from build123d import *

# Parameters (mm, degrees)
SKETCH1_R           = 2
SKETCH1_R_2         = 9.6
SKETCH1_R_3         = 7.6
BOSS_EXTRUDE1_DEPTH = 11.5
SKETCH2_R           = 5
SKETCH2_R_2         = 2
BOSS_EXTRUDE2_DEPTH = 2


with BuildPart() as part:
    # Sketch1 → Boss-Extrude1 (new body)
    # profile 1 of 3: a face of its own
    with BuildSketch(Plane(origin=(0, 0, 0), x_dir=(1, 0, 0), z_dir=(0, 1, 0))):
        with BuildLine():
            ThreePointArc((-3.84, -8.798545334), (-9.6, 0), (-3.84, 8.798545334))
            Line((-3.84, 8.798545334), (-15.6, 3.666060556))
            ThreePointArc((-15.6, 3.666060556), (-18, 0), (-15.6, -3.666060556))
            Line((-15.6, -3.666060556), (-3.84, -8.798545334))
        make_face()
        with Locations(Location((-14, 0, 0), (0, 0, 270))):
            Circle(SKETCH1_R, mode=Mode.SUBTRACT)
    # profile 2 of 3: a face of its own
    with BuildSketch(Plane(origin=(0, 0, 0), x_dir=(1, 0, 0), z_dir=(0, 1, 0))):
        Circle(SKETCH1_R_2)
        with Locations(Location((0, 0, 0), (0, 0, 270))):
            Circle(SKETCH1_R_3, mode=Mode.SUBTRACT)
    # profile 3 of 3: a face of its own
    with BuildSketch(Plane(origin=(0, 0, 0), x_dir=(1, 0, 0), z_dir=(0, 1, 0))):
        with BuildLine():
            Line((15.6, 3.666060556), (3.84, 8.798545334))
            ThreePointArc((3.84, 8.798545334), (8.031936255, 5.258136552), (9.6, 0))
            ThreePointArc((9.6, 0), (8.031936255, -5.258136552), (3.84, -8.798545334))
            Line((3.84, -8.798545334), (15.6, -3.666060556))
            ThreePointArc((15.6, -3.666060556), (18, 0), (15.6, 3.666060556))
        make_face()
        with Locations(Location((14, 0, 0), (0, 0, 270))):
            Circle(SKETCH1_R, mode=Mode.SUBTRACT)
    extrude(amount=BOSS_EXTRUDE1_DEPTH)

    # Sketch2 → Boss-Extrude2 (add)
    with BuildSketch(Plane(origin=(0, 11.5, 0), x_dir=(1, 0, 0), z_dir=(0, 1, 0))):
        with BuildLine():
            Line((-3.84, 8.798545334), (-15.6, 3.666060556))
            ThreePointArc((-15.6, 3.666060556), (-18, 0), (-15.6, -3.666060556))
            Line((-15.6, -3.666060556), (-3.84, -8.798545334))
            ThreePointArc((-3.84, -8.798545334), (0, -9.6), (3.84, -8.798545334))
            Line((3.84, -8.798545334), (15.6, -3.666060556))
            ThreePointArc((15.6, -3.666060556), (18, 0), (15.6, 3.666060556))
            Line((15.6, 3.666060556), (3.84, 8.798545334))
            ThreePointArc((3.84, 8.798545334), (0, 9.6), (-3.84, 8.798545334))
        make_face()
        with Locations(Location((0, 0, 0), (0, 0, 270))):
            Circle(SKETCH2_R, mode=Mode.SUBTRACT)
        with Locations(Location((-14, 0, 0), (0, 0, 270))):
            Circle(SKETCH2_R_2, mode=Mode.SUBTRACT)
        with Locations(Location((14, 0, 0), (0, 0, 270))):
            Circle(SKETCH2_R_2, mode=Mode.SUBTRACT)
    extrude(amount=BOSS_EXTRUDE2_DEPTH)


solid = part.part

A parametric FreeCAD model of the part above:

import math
import FreeCAD as App
import Part
import Sketcher

doc = App.newDocument("Part")
params = doc.addObject("Spreadsheet::Sheet", "Params")
for row, (alias, value) in enumerate([
    ("sketch1_diameter", "4 mm"),
    ("sketch1_radius", "4 mm"),
    ("sketch1_diameter2", "15.2 mm"),
    ("sketch1_radius2", "9.6 mm"),
    ("pad1_length", "11.5 mm"),
    ("sketch2_diameter", "4 mm"),
    ("sketch2_diameter2", "10 mm"),
    ("sketch2_radius", "4 mm"),
    ("sketch2_radius2", "9.6 mm"),
    ("pad2_length", "2 mm"),
], start=1):
    params.set(f"A{row}", alias)
    params.set(f"B{row}", "=" + value)
    params.setAlias(f"B{row}", alias)

body = doc.addObject("PartDesign::Body", "Body")

# Sketch on XZ plane
sketch1 = doc.addObject("Sketcher::SketchObject", "Sketch")
body.addObject(sketch1)
sketch1.AttachmentSupport = (doc.XZ_Plane, [""])
sketch1.MapMode = "FlatFace"
sketch1.addGeometry([
    Part.LineSegment(App.Vector(-15.6, 3.666061, 0), App.Vector(-3.84, 8.798545, 0)),  # 0
    Part.ArcOfCircle(Part.Circle(App.Vector(0, 0, 0), App.Vector(0, 0, 1), 9.6), math.radians(66.421822), math.radians(113.578178)),  # 1
    Part.LineSegment(App.Vector(3.84, 8.798545, 0), App.Vector(15.6, 3.666061, 0)),  # 2
    Part.ArcOfCircle(Part.Circle(App.Vector(14, 0, 0), App.Vector(0, 0, 1), 4), math.radians(-66.421822), math.radians(66.421822)),  # 3
    Part.LineSegment(App.Vector(15.6, -3.666061, 0), App.Vector(3.84, -8.798545, 0)),  # 4
    Part.ArcOfCircle(Part.Circle(App.Vector(0, 0, 0), App.Vector(0, 0, 1), 9.6), math.radians(-113.578178), math.radians(-66.421822)),  # 5
    Part.LineSegment(App.Vector(-3.84, -8.798545, 0), App.Vector(-15.6, -3.666061, 0)),  # 6
    Part.ArcOfCircle(Part.Circle(App.Vector(-14, 0, 0), App.Vector(0, 0, 1), 4), math.radians(113.578178), math.radians(246.421822)),  # 7
    Part.Circle(App.Vector(-14, 0, 0), App.Vector(0, 0, 1), 2),  # 8
    Part.Circle(App.Vector(0, 0, 0), App.Vector(0, 0, 1), 7.6),  # 9
    Part.Circle(App.Vector(14, 0, 0), App.Vector(0, 0, 1), 2),  # 10
], False)
sketch1.addConstraint([
    Sketcher.Constraint("Tangent", 0, 2, 1, 2),
    Sketcher.Constraint("Tangent", 1, 1, 2, 1),
    Sketcher.Constraint("Tangent", 2, 2, 3, 2),
    Sketcher.Constraint("Tangent", 3, 1, 4, 1),
    Sketcher.Constraint("Tangent", 4, 2, 5, 2),
    Sketcher.Constraint("Tangent", 5, 1, 6, 1),
    Sketcher.Constraint("Tangent", 6, 2, 7, 2),
    Sketcher.Constraint("Tangent", 7, 1, 0, 1),
    Sketcher.Constraint("Coincident", 1, 3, -1, 1),
    Sketcher.Constraint("Coincident", 5, 3, -1, 1),
    Sketcher.Constraint("Coincident", 9, 3, -1, 1),
    Sketcher.Constraint("Coincident", 8, 3, 7, 3),
    Sketcher.Constraint("Coincident", 10, 3, 3, 3),
    Sketcher.Constraint("Equal", 1, 5),
    Sketcher.Constraint("Equal", 3, 7),
    Sketcher.Constraint("Equal", 8, 10),
    Sketcher.Constraint("Symmetric", 3, 3, 7, 3, -1, 1),
    Sketcher.Constraint("PointOnObject", 3, 3, -1),
    Sketcher.Constraint("Diameter", 8, 4.0),
    Sketcher.Constraint("Radius", 3, 4.0),
    Sketcher.Constraint("Diameter", 9, 15.2),
    Sketcher.Constraint("Radius", 1, 9.6),
    Sketcher.Constraint("DistanceX", -1, 1, 3, 3, 14.0),
])
sketch1.setExpression("Constraints[18]", "Params.sketch1_diameter")
sketch1.setExpression("Constraints[19]", "Params.sketch1_radius")
sketch1.setExpression("Constraints[20]", "Params.sketch1_diameter2")
sketch1.setExpression("Constraints[21]", "Params.sketch1_radius2")
pad1 = doc.addObject("PartDesign::Pad", "Pad")
body.addObject(pad1)
pad1.Profile = sketch1
pad1.setExpression("Length", "Params.pad1_length")
pad1.Reversed = True

# Sketch on XZ plane
sketch2 = doc.addObject("Sketcher::SketchObject", "Sketch001")
body.addObject(sketch2)
sketch2.AttachmentSupport = (doc.XZ_Plane, [""])
sketch2.MapMode = "FlatFace"
sketch2.AttachmentOffset = App.Placement(App.Vector(0, 0, -11.5), App.Rotation())
sketch2.addGeometry([
    Part.LineSegment(App.Vector(-3.84, -8.798545, 0), App.Vector(-15.6, -3.666061, 0)),  # 0
    Part.ArcOfCircle(Part.Circle(App.Vector(-14, 0, 0), App.Vector(0, 0, 1), 4), math.radians(113.578178), math.radians(246.421822)),  # 1
    Part.LineSegment(App.Vector(-15.6, 3.666061, 0), App.Vector(-3.84, 8.798545, 0)),  # 2
    Part.ArcOfCircle(Part.Circle(App.Vector(0, 0, 0), App.Vector(0, 0, 1), 9.6), math.radians(66.421822), math.radians(113.578178)),  # 3
    Part.LineSegment(App.Vector(3.84, 8.798545, 0), App.Vector(15.6, 3.666061, 0)),  # 4
    Part.ArcOfCircle(Part.Circle(App.Vector(14, 0, 0), App.Vector(0, 0, 1), 4), math.radians(-66.421822), math.radians(66.421822)),  # 5
    Part.LineSegment(App.Vector(15.6, -3.666061, 0), App.Vector(3.84, -8.798545, 0)),  # 6
    Part.ArcOfCircle(Part.Circle(App.Vector(0, 0, 0), App.Vector(0, 0, 1), 9.6), math.radians(-113.578178), math.radians(-66.421822)),  # 7
    Part.Circle(App.Vector(-14, 0, 0), App.Vector(0, 0, 1), 2),  # 8
    Part.Circle(App.Vector(0, 0, 0), App.Vector(0, 0, 1), 5),  # 9
    Part.Circle(App.Vector(14, 0, 0), App.Vector(0, 0, 1), 2),  # 10
], False)
sketch2.addConstraint([
    Sketcher.Constraint("Tangent", 0, 2, 1, 2),
    Sketcher.Constraint("Tangent", 1, 1, 2, 1),
    Sketcher.Constraint("Tangent", 2, 2, 3, 2),
    Sketcher.Constraint("Tangent", 3, 1, 4, 1),
    Sketcher.Constraint("Tangent", 4, 2, 5, 2),
    Sketcher.Constraint("Tangent", 5, 1, 6, 1),
    Sketcher.Constraint("Tangent", 6, 2, 7, 2),
    Sketcher.Constraint("Tangent", 7, 1, 0, 1),
    Sketcher.Constraint("Coincident", 3, 3, -1, 1),
    Sketcher.Constraint("Coincident", 7, 3, -1, 1),
    Sketcher.Constraint("Coincident", 9, 3, -1, 1),
    Sketcher.Constraint("Coincident", 8, 3, 1, 3),
    Sketcher.Constraint("Coincident", 10, 3, 5, 3),
    Sketcher.Constraint("Equal", 1, 5),
    Sketcher.Constraint("Equal", 3, 7),
    Sketcher.Constraint("Equal", 8, 10),
    Sketcher.Constraint("Symmetric", 1, 3, 5, 3, -1, 1),
    Sketcher.Constraint("PointOnObject", 1, 3, -1),
    Sketcher.Constraint("Diameter", 8, 4.0),
    Sketcher.Constraint("Diameter", 9, 10.0),
    Sketcher.Constraint("Radius", 1, 4.0),
    Sketcher.Constraint("Radius", 3, 9.6),
    Sketcher.Constraint("DistanceX", 1, 3, -1, 1, 14.0),
])
sketch2.setExpression("Constraints[18]", "Params.sketch2_diameter")
sketch2.setExpression("Constraints[19]", "Params.sketch2_diameter2")
sketch2.setExpression("Constraints[20]", "Params.sketch2_radius")
sketch2.setExpression("Constraints[21]", "Params.sketch2_radius2")
pad2 = doc.addObject("PartDesign::Pad", "Pad001")
body.addObject(pad2)
pad2.Profile = sketch2
pad2.setExpression("Length", "Params.pad2_length")
pad2.Reversed = True

doc.recompute()
